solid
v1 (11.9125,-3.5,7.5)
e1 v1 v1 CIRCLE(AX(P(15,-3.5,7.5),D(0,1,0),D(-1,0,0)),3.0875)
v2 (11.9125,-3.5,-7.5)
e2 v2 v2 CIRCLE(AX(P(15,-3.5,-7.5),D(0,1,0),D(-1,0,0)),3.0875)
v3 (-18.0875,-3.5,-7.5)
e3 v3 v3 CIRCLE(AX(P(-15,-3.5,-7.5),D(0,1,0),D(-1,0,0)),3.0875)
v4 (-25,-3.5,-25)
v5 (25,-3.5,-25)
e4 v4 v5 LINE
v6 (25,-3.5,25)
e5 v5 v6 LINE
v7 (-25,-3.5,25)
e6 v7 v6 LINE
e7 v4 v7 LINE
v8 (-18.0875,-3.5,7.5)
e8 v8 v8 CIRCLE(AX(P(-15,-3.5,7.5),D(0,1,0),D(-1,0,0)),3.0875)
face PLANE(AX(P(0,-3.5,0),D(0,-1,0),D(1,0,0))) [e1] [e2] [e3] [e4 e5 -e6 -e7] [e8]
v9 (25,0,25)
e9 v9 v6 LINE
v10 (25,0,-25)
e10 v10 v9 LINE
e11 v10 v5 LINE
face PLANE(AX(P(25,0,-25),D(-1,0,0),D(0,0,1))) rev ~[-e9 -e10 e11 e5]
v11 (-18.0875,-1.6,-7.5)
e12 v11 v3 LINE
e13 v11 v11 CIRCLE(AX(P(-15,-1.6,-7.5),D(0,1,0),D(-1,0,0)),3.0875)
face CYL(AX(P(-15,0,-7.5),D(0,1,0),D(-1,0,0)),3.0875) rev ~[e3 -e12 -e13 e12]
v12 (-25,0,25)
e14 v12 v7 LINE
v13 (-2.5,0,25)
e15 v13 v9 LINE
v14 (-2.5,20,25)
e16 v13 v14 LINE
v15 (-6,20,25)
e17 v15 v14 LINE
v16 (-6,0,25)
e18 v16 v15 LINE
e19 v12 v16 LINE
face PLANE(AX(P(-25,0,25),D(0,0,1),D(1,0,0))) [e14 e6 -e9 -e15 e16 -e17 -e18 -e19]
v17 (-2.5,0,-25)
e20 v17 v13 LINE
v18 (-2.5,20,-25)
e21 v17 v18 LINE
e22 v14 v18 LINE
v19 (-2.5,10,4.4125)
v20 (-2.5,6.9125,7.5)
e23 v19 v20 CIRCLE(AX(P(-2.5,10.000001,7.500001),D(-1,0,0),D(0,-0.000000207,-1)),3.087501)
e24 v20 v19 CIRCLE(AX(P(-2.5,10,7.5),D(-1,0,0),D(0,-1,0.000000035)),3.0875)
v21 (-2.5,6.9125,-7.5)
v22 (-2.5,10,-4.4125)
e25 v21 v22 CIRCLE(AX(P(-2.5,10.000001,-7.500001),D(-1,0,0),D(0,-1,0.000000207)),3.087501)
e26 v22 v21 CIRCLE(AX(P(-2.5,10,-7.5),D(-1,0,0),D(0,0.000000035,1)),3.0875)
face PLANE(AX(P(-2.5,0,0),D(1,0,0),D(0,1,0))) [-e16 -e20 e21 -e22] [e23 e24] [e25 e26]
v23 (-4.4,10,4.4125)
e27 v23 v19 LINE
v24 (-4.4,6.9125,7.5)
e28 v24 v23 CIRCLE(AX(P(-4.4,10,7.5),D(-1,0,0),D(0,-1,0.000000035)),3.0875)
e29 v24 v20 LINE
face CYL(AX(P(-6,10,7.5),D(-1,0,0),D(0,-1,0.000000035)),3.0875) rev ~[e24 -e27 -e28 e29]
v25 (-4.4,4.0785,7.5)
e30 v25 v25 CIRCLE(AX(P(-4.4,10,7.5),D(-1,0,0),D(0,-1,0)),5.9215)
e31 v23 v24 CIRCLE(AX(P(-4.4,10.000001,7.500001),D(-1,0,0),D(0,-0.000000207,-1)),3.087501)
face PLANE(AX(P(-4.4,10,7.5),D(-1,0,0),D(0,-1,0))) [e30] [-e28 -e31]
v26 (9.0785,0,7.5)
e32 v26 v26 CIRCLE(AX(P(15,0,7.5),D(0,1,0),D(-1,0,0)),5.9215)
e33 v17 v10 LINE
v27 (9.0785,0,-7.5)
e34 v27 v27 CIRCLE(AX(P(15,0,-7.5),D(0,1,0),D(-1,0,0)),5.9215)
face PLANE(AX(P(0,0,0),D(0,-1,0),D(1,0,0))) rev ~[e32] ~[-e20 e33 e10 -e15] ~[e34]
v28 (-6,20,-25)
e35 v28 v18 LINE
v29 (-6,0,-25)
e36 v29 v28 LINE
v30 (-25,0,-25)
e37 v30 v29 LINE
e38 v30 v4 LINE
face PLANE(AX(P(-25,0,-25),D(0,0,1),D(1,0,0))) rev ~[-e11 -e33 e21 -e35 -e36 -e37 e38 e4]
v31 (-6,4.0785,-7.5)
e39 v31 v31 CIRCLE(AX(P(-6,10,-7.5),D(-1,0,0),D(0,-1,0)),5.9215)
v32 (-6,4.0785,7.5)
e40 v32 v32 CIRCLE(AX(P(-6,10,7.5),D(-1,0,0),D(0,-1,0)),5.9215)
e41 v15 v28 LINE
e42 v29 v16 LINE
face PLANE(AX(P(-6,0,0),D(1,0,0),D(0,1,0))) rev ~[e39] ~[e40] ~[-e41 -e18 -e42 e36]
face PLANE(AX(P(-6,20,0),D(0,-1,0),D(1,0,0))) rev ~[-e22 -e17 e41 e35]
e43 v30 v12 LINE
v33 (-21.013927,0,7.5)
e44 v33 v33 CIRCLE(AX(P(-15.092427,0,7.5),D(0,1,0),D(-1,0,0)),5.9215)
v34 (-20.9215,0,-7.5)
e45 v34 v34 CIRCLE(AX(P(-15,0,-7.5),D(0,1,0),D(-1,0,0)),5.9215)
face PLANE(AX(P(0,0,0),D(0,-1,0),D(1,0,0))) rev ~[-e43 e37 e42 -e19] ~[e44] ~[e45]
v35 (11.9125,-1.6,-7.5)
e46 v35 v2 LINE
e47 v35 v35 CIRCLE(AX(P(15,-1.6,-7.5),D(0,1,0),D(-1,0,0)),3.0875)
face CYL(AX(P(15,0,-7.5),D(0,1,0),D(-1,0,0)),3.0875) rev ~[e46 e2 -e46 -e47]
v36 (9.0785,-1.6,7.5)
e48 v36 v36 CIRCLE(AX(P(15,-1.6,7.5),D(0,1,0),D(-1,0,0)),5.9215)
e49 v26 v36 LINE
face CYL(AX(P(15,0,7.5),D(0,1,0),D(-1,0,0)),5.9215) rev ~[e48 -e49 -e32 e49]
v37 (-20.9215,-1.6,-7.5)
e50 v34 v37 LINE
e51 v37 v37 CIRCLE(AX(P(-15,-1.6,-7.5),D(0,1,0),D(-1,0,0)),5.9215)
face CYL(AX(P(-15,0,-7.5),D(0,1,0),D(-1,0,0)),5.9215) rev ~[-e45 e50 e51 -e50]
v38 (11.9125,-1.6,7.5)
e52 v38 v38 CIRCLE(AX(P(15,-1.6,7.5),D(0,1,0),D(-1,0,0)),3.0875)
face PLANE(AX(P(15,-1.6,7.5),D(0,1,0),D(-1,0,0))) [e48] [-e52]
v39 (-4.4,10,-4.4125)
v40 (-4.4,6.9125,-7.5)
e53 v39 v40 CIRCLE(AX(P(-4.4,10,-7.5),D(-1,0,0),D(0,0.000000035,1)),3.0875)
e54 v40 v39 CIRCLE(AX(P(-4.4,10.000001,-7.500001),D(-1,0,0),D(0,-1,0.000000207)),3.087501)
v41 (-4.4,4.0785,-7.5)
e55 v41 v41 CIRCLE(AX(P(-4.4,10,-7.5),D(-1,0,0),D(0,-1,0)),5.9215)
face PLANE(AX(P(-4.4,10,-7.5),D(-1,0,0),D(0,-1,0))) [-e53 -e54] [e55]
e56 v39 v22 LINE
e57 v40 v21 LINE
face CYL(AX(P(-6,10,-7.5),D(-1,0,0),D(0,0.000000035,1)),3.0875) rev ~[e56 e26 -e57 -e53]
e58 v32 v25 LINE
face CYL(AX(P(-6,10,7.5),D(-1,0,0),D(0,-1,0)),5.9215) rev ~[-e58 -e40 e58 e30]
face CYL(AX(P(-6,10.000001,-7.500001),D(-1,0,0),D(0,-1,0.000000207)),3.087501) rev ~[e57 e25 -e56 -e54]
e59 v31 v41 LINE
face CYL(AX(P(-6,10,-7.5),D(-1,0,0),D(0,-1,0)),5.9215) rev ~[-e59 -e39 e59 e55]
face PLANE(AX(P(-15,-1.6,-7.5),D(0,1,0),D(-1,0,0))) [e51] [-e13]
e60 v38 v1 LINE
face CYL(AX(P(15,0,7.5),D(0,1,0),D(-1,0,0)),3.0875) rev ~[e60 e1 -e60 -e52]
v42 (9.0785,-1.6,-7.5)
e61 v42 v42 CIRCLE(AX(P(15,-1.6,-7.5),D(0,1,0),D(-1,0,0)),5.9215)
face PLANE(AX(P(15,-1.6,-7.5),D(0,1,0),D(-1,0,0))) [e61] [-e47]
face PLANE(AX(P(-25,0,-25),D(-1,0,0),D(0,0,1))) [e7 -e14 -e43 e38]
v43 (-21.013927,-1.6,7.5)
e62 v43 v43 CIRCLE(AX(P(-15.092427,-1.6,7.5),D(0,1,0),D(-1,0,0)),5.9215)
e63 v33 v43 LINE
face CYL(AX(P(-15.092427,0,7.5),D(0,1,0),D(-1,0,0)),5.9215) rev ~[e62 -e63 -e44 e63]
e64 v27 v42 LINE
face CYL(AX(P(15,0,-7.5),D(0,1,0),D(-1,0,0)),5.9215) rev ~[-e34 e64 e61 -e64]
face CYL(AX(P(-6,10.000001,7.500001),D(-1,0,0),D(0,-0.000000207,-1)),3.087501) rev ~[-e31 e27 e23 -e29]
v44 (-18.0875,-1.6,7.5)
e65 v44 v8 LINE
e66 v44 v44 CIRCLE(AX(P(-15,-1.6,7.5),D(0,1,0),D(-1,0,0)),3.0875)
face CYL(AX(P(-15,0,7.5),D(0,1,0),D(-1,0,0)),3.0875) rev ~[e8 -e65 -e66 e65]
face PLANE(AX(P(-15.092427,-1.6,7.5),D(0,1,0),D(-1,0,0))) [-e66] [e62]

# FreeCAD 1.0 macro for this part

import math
import FreeCAD as App
import Part
import Sketcher

V = App.Vector
Q = App.Units.Quantity


def add_polygon(sketch, points):
    """Adds a closed chain of lines whose ends are joined by coincident constraints."""
    first, n = sketch.GeometryCount, len(points)
    for a, b in zip(points, points[1:] + points[:1]):
        sketch.addGeometry(Part.LineSegment(App.Vector(*a, 0), App.Vector(*b, 0)), False)
    for i in range(n):
        sketch.addConstraint(Sketcher.Constraint("Coincident", first + i, 2, first + (i + 1) % n, 1))

doc = App.newDocument("Part")
params = doc.addObject("Spreadsheet::Sheet", "Params")
for row, (alias, value) in enumerate([
    ("sketch1_width", "50 mm"),
    ("pad1_length", "3.5 mm"),
    ("sketch2_height", "20 mm"),
    ("sketch2_width", "3.5 mm"),
    ("pad2_length", "50 mm"),
    ("pocket1_length", "25 mm"),
    ("pocket2_length", "1.6 mm"),
    ("pocket3_length", "25 mm"),
    ("pocket4_length", "1.6 mm"),
], start=1):
    params.set(f"A{row}", alias)
    params.set(f"B{row}", "=" + value)
    params.setAlias(f"B{row}", alias)

body = doc.addObject("PartDesign::Body", "Body")

# Sketch on XZ plane
sketch1 = body.newObject("Sketcher::SketchObject", "Sketch")
sketch1.AttachmentSupport = (doc.getObject("XZ_Plane"), [""])
sketch1.MapMode = "FlatFace"
add_polygon(sketch1, [(-25, 25), (-25, -25), (25, -25), (25, 25)])  # lines 0-3
sketch1.addConstraint(Sketcher.Constraint("Vertical", 0))
sketch1.addConstraint(Sketcher.Constraint("Horizontal", 1))
sketch1.addConstraint(Sketcher.Constraint("Vertical", 2))
sketch1.addConstraint(Sketcher.Constraint("Horizontal", 3))
sketch1.addConstraint(Sketcher.Constraint("Symmetric", 0, 2, 2, 2, -1, 1))
sketch1.addConstraint(Sketcher.Constraint("Equal", 3, 0))
sketch1.addConstraint(Sketcher.Constraint("DistanceX", 1, 1, 1, 2, Q("50 mm")))
sketch1.setExpression("Constraints[10]", "Params.sketch1_width")
pad1 = body.newObject("PartDesign::Pad", "Pad")
pad1.Profile = sketch1
pad1.setExpression("Length", "Params.pad1_length")

# Sketch on XY plane
sketch2 = body.newObject("Sketcher::SketchObject", "Sketch001")
sketch2.AttachmentSupport = (doc.getObject("XY_Plane"), [""])
sketch2.MapMode = "FlatFace"
add_polygon(sketch2, [(-6, 20), (-6, 0), (-2.5, 0), (-2.5, 20)])  # lines 0-3
sketch2.addConstraint(Sketcher.Constraint("Vertical", 0))
sketch2.addConstraint(Sketcher.Constraint("Horizontal", 1))
sketch2.addConstraint(Sketcher.Constraint("Vertical", 2))
sketch2.addConstraint(Sketcher.Constraint("Horizontal", 3))
sketch2.addConstraint(Sketcher.Constraint("PointOnObject", 0, 2, -1))
sketch2.addConstraint(Sketcher.Constraint("DistanceY", 0, 2, 0, 1, Q("20 mm")))
sketch2.addConstraint(Sketcher.Constraint("DistanceX", 1, 1, 1, 2, Q("3.5 mm")))
sketch2.addConstraint(Sketcher.Constraint("DistanceX", 0, 2, -1, 1, Q("6 mm")))
sketch2.setExpression("Constraints[9]", "Params.sketch2_height")
sketch2.setExpression("Constraints[10]", "Params.sketch2_width")
pad2 = body.newObject("PartDesign::Pad", "Pad001")
pad2.Profile = sketch2
pad2.setExpression("Length", "Params.pad2_length")
pad2.Midplane = True

# Sketch on YZ plane
sketch3 = body.newObject("Sketcher::SketchObject", "Sketch002")
sketch3.AttachmentSupport = (doc.getObject("YZ_Plane"), [""])
sketch3.MapMode = "FlatFace"
sketch3.AttachmentOffset = App.Placement(V(0, 0, -6), App.Rotation())
sketch3.addGeometry(Part.ArcOfCircle(Part.Circle(V(10, 7.5, 0), V(0, 0, 1), 3.1), math.radians(-90), math.radians(180)), False)
sketch3.addGeometry(Part.ArcOfCircle(Part.Circle(V(10, 7.5, 0), V(0, 0, 1), 3.1), math.radians(-180), math.radians(-90)), False)
sketch3.addGeometry(Part.ArcOfCircle(Part.Circle(V(10, -7.5, 0), V(0, 0, 1), 3.1), math.radians(90), math.radians(180)), False)
sketch3.addGeometry(Part.ArcOfCircle(Part.Circle(V(10, -7.5, 0), V(0, 0, 1), 3.1), math.radians(-180), math.radians(90)), False)
sketch3.addConstraint(Sketcher.Constraint("Tangent", 0, 1, 1, 2))
sketch3.addConstraint(Sketcher.Constraint("Coincident", 1, 1, 0, 2))
sketch3.addConstraint(Sketcher.Constraint("Tangent", 2, 1, 3, 2))
sketch3.addConstraint(Sketcher.Constraint("Coincident", 3, 1, 2, 2))
sketch3.addConstraint(Sketcher.Constraint("Equal", 1, 2))
sketch3.addConstraint(Sketcher.Constraint("Symmetric", 0, 3, 2, 3, -1))
sketch3.addConstraint(Sketcher.Constraint("Horizontal", 0, 3, 1, 1))
sketch3.addConstraint(Sketcher.Constraint("Horizontal", 2, 3, 3, 1))
sketch3.addConstraint(Sketcher.Constraint("Vertical", 3, 3, 0, 1))
sketch3.addConstraint(Sketcher.Constraint("Vertical", 0, 1, 2, 1))
sketch3.addConstraint(Sketcher.Constraint("DistanceX", -1, 1, 0, 3, Q("10 mm")))
sketch3.addConstraint(Sketcher.Constraint("DistanceY", 2, 3, 0, 3, Q("15.000001 mm")))
sketch3.addConstraint(Sketcher.Constraint("Radius", 0, Q("3.0875 mm")))
pocket1 = body.newObject("PartDesign::Pocket", "Pocket")
pocket1.Profile = sketch3
pocket1.setExpression("Length", "Params.pocket1_length")
pocket1.Reversed = True

# Sketch on YZ plane
sketch4 = body.newObject("Sketcher::SketchObject", "Sketch003")
sketch4.AttachmentSupport = (doc.getObject("YZ_Plane"), [""])
sketch4.MapMode = "FlatFace"
sketch4.AttachmentOffset = App.Placement(V(0, 0, -6), App.Rotation())
sketch4.addGeometry(Part.Circle(V(10, 8, 0), V(0, 0, 1), 6), False)
sketch4.addGeometry(Part.Circle(V(10, -8, 0), V(0, 0, 1), 6), False)
sketch4.addConstraint(Sketcher.Constraint("Equal", 0, 1))
sketch4.addConstraint(Sketcher.Constraint("Symmetric", 0, 3, 1, 3, -1))
sketch4.addConstraint(Sketcher.Constraint("Diameter", 0, Q("11.843 mm")))
sketch4.addConstraint(Sketcher.Constraint("DistanceX", -1, 1, 0, 3, Q("10 mm")))
sketch4.addConstraint(Sketcher.Constraint("DistanceY", 1, 3, 0, 3, Q("15 mm")))
pocket2 = body.newObject("PartDesign::Pocket", "Pocket001")
pocket2.Profile = sketch4
pocket2.setExpression("Length", "Params.pocket2_length")
pocket2.Reversed = True

# Sketch on XZ plane
sketch5 = body.newObject("Sketcher::SketchObject", "Sketch004")
sketch5.AttachmentSupport = (doc.getObject("XZ_Plane"), [""])
sketch5.MapMode = "FlatFace"
sketch5.addGeometry(Part.Circle(V(15, 7.5, 0), V(0, 0, 1), 3.1), False)
sketch5.addGeometry(Part.Circle(V(15, -7.5, 0), V(0, 0, 1), 3.1), False)
sketch5.addGeometry(Part.Circle(V(-15, 7.5, 0), V(0, 0, 1), 3.1), False)
sketch5.addGeometry(Part.Circle(V(-15, -7.5, 0), V(0, 0, 1), 3.1), False)
sketch5.addConstraint(Sketcher.Constraint("Equal", 0, 1))
sketch5.addConstraint(Sketcher.Constraint("Equal", 1, 2))
sketch5.addConstraint(Sketcher.Constraint("Equal", 2, 3))
sketch5.addConstraint(Sketcher.Constraint("Symmetric", 1, 3, 2, 3, -1, 1))
sketch5.addConstraint(Sketcher.Constraint("Symmetric", 0, 3, 3, 3, -1, 1))
sketch5.addConstraint(Sketcher.Constraint("Symmetric", 0, 3, 2, 3, -2))
sketch5.addConstraint(Sketcher.Constraint("Diameter", 0, Q("6.175 mm")))
sketch5.addConstraint(Sketcher.Constraint("DistanceX", -1, 1, 0, 3, Q("15 mm")))
sketch5.addConstraint(Sketcher.Constraint("DistanceY", 1, 3, 0, 3, Q("15 mm")))
pocket3 = body.newObject("PartDesign::Pocket", "Pocket002")
pocket3.Profile = sketch5
pocket3.setExpression("Length", "Params.pocket3_length")
pocket3.Reversed = True

# Sketch on XZ plane
sketch6 = body.newObject("Sketcher::SketchObject", "Sketch005")
sketch6.AttachmentSupport = (doc.getObject("XZ_Plane"), [""])
sketch6.MapMode = "FlatFace"
sketch6.addGeometry(Part.Circle(V(15, 8, 0), V(0, 0, 1), 6), False)
sketch6.addGeometry(Part.Circle(V(15, -8, 0), V(0, 0, 1), 6), False)
sketch6.addGeometry(Part.Circle(V(-15, 8, 0), V(0, 0, 1), 6), False)
sketch6.addGeometry(Part.Circle(V(-15, -8, 0), V(0, 0, 1), 6), False)
sketch6.addConstraint(Sketcher.Constraint("Equal", 0, 1))
sketch6.addConstraint(Sketcher.Constraint("Equal", 1, 2))
sketch6.addConstraint(Sketcher.Constraint("Equal", 2, 3))
sketch6.addConstraint(Sketcher.Constraint("Symmetric", 0, 3, 3, 3, -1, 1))
sketch6.addConstraint(Sketcher.Constraint("Symmetric", 1, 3, 3, 3, -2))
sketch6.addConstraint(Sketcher.Constraint("Horizontal", 0, 3, 2, 3))
sketch6.addConstraint(Sketcher.Constraint("Diameter", 0, Q("11.843 mm")))
sketch6.addConstraint(Sketcher.Constraint("DistanceX", -1, 1, 0, 3, Q("15 mm")))
sketch6.addConstraint(Sketcher.Constraint("DistanceY", 1, 3, 0, 3, Q("15 mm")))
sketch6.addConstraint(Sketcher.Constraint("DistanceX", 2, 3, -1, 1, Q("15.092427 mm")))
pocket4 = body.newObject("PartDesign::Pocket", "Pocket003")
pocket4.Profile = sketch6
pocket4.setExpression("Length", "Params.pocket4_length")
pocket4.Reversed = True

doc.recompute()
